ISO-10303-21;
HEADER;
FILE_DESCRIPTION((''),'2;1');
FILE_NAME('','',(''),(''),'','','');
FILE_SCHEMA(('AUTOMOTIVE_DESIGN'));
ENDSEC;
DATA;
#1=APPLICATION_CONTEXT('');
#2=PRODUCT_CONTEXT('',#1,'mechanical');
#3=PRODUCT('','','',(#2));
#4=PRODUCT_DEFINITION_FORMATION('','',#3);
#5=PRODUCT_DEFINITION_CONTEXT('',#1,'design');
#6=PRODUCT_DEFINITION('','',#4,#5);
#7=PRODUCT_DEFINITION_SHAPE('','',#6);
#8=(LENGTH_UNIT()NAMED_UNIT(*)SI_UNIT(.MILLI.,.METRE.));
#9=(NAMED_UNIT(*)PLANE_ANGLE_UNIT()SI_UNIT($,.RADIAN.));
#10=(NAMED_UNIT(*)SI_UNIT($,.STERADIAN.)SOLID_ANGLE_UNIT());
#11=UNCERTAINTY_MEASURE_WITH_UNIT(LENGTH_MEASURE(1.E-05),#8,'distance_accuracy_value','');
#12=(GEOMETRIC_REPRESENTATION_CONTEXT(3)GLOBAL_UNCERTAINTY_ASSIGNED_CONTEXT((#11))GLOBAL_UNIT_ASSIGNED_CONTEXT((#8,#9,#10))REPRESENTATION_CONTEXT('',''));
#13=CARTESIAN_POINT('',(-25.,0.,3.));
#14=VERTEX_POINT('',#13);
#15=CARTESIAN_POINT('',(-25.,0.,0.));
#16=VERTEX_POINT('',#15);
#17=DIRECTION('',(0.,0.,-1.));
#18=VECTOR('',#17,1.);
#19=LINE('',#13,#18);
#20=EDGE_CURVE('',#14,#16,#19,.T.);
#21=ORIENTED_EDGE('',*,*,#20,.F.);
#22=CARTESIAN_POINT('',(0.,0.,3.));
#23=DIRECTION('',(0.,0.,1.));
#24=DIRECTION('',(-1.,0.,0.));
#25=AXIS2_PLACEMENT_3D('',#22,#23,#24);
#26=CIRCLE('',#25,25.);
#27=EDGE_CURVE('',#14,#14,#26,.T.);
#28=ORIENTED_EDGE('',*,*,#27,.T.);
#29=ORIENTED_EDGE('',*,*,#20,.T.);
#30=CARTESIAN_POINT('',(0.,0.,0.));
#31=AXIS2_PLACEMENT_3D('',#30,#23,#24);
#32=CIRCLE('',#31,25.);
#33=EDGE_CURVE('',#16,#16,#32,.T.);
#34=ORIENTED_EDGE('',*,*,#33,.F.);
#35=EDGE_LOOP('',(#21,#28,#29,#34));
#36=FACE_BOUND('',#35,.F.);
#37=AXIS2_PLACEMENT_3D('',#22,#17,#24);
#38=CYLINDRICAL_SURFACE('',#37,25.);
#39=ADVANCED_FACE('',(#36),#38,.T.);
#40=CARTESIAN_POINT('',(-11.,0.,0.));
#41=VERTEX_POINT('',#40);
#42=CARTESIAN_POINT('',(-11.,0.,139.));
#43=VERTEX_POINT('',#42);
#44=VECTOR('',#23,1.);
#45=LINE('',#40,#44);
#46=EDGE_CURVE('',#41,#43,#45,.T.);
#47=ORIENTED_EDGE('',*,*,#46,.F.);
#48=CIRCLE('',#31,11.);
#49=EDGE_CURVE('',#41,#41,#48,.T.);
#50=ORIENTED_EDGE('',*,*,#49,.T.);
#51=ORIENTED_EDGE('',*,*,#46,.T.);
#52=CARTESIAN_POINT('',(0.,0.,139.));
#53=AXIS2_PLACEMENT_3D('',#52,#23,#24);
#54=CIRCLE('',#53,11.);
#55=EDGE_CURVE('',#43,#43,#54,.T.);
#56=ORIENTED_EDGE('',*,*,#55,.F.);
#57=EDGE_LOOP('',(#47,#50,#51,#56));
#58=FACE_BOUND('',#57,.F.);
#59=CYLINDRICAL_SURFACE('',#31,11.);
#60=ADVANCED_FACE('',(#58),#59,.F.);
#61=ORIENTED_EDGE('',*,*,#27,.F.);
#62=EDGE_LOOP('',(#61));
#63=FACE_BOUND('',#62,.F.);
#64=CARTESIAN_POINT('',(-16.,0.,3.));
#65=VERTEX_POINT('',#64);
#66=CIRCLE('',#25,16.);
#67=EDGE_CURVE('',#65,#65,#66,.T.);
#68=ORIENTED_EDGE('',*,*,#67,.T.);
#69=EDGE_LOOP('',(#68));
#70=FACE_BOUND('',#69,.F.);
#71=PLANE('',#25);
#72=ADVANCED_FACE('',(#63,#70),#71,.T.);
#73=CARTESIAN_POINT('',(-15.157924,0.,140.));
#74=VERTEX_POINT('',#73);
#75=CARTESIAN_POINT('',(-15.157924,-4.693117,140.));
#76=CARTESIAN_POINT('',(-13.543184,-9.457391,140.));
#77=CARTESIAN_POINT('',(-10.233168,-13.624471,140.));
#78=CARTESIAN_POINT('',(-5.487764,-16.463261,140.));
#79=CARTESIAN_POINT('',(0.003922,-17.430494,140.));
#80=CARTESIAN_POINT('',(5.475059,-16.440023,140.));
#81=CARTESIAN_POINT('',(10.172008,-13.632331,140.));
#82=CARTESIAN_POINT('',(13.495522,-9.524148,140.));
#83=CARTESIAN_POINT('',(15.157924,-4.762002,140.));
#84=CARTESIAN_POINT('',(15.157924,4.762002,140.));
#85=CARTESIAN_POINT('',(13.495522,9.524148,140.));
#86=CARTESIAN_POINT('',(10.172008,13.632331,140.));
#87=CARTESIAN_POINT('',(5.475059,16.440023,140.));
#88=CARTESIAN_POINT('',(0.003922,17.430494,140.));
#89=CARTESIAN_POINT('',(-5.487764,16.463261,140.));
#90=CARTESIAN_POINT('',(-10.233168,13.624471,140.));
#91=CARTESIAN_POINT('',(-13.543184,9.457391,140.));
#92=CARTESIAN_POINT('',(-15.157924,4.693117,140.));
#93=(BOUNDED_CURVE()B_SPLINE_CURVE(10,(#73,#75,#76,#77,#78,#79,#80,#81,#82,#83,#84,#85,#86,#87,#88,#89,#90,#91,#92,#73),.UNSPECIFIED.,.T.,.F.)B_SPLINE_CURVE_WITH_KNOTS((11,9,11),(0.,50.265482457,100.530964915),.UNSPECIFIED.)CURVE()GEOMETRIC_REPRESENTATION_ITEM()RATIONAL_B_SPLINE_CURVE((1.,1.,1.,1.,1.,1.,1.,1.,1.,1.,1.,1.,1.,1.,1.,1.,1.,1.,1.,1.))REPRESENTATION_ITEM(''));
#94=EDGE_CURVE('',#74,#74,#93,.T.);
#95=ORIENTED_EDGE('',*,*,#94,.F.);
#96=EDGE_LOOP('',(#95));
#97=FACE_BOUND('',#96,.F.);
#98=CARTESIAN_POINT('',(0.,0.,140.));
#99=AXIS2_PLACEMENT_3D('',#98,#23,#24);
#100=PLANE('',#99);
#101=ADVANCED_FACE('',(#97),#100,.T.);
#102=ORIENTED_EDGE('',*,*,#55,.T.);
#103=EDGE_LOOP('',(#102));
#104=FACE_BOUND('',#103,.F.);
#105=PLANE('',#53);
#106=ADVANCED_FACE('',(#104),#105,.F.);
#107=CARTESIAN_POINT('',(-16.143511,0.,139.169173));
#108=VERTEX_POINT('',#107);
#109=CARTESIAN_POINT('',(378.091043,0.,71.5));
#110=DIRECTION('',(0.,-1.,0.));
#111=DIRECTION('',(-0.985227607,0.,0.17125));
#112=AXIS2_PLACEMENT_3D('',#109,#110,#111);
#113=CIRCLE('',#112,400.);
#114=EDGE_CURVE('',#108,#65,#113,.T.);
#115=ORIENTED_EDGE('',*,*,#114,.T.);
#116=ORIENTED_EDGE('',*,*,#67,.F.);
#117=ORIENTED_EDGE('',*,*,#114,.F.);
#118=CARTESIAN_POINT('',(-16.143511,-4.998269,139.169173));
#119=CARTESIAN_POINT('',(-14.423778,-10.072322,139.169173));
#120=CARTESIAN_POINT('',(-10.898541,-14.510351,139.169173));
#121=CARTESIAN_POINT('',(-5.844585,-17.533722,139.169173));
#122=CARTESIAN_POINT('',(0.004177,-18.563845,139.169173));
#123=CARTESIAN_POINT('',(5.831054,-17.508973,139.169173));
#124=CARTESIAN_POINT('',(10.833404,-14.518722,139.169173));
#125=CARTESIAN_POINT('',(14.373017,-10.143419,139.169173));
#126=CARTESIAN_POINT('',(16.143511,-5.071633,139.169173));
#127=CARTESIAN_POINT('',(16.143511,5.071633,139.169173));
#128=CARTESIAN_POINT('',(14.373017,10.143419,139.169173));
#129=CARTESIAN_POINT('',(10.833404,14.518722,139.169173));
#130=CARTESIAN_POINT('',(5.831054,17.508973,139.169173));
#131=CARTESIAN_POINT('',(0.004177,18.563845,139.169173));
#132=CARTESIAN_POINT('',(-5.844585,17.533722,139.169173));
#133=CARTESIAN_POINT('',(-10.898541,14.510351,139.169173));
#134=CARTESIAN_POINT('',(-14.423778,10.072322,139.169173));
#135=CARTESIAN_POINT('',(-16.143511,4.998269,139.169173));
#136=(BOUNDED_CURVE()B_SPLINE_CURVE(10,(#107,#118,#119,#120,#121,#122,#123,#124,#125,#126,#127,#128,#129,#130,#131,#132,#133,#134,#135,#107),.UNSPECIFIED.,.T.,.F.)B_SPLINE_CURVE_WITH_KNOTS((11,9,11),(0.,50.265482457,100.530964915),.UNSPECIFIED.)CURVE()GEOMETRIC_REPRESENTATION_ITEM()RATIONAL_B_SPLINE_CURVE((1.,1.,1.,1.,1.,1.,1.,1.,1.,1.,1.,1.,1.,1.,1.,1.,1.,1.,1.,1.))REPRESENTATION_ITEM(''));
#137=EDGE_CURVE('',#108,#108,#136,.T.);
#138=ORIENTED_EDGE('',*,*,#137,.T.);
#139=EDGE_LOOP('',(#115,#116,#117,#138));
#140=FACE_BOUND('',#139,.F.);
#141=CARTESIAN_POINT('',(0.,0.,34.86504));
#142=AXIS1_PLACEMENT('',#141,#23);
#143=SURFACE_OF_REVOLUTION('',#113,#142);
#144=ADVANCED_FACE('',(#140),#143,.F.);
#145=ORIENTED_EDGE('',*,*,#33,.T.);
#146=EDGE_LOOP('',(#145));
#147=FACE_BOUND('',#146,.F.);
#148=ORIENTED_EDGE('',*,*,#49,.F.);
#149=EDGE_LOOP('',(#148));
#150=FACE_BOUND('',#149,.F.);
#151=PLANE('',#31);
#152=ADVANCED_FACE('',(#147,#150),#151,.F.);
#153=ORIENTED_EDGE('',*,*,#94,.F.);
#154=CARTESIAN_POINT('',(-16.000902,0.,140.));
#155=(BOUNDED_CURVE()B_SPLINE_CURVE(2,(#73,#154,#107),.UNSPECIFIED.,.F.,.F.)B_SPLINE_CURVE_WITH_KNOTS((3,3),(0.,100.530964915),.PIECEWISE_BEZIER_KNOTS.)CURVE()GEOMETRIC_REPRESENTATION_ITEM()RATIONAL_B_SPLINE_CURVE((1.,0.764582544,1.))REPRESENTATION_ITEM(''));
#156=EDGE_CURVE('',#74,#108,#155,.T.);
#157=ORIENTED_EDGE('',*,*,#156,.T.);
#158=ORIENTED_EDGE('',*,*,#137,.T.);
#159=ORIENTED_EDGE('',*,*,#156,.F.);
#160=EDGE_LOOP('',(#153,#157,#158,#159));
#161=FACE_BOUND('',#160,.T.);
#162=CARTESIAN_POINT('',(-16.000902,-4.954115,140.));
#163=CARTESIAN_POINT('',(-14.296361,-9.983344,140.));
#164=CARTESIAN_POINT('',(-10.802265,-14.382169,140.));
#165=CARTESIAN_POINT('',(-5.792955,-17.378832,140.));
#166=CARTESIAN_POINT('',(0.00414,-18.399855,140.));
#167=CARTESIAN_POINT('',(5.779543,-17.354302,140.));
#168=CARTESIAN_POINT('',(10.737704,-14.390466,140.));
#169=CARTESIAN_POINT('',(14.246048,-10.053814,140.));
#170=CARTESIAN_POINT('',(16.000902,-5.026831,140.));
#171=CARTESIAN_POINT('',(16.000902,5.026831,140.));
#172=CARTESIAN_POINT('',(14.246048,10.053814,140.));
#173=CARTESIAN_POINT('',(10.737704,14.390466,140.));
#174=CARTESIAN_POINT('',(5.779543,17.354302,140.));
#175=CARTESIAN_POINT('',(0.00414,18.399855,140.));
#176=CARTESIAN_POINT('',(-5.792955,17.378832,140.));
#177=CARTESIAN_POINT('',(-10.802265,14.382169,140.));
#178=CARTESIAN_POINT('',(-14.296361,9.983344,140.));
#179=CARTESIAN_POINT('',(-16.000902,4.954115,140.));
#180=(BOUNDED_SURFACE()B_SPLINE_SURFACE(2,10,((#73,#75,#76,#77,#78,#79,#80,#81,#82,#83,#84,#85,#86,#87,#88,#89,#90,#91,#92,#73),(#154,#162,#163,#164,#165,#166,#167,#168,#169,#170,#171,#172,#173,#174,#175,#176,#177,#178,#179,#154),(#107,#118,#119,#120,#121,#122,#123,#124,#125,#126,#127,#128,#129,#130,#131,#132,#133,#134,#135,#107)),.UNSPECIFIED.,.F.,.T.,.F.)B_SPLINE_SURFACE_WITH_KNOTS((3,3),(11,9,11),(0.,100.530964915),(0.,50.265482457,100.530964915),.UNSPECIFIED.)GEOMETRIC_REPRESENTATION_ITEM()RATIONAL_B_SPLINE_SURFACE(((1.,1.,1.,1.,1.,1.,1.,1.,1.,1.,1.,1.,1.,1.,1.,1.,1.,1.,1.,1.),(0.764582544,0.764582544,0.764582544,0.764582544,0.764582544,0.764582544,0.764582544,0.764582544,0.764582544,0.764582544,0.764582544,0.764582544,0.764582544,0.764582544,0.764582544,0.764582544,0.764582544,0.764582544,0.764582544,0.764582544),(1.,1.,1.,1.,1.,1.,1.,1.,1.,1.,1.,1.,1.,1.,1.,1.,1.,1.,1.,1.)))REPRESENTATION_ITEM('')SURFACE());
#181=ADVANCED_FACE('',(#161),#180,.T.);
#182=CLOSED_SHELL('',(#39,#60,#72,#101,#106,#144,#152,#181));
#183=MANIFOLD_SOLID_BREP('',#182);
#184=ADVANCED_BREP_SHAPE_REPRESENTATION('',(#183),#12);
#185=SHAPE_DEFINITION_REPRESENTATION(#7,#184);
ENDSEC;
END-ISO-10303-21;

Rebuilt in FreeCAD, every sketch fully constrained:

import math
import FreeCAD as App
import Part
import Sketcher
Q = App.Units.Quantity


def edges_at(feature, points):
    """Names of the edges that pass closest to the given points."""
    edges = feature.Shape.Edges
    near = lambda p: min(range(len(edges)), key=lambda i: edges[i].distToShape(Part.Vertex(*p))[0])
    return sorted({f"Edge{near(p) + 1}" for p in points})

doc = App.newDocument("Part")
body = doc.addObject("PartDesign::Body", "Body")

sketch1 = body.newObject("Sketcher::SketchObject", "Sketch")
sketch1.AttachmentSupport = (doc.getObject("XZ_Plane"), [""])
sketch1.MapMode = "FlatFace"
sketch1.addGeometry([
    Part.LineSegment(App.Vector(-25, 3, 0), App.Vector(-25, 0, 0)),
    Part.LineSegment(App.Vector(-25, 0, 0), App.Vector(-11, 0, 0)),
    Part.LineSegment(App.Vector(-11, 0, 0), App.Vector(-11, 139, 0)),
    Part.LineSegment(App.Vector(-11, 139, 0), App.Vector(0, 139, 0)),
    Part.LineSegment(App.Vector(0, 139, 0), App.Vector(0, 140, 0)),
    Part.LineSegment(App.Vector(0, 140, 0), App.Vector(-16, 140, 0)),
    Part.ArcOfCircle(Part.Circle(App.Vector(378.1, 71.5, 0), App.Vector(0, 0, 1), 400), math.radians(170.14), math.radians(189.86)),
    Part.LineSegment(App.Vector(-16, 3, 0), App.Vector(-25, 3, 0)),
], False)
sketch1.addConstraint([
    Sketcher.Constraint("Coincident", 0, 2, 1, 1),
    Sketcher.Constraint("Coincident", 1, 2, 2, 1),
    Sketcher.Constraint("Coincident", 2, 2, 3, 1),
    Sketcher.Constraint("Coincident", 3, 2, 4, 1),
    Sketcher.Constraint("Coincident", 4, 2, 5, 1),
    Sketcher.Constraint("Coincident", 5, 2, 6, 1),
    Sketcher.Constraint("Coincident", 6, 2, 7, 1),
    Sketcher.Constraint("Coincident", 7, 2, 0, 1),
    Sketcher.Constraint("Vertical", 0),
    Sketcher.Constraint("Horizontal", 1),
    Sketcher.Constraint("Vertical", 2),
    Sketcher.Constraint("Horizontal", 3),
    Sketcher.Constraint("Vertical", 4),
    Sketcher.Constraint("Horizontal", 5),
    Sketcher.Constraint("Horizontal", 7),
    Sketcher.Constraint("PointOnObject", 0, 2, -1),
    Sketcher.Constraint("PointOnObject", 3, 2, -2),
    Sketcher.Constraint("Vertical", 5, 2, 6, 2),
    Sketcher.Constraint("Radius", 6, Q("400 mm")),
    Sketcher.Constraint("DistanceX", 1, 1, 1, 2, Q("14 mm")),
    Sketcher.Constraint("DistanceX", 3, 1, 3, 2, Q("11 mm")),
    Sketcher.Constraint("DistanceX", 5, 2, 5, 1, Q("16 mm")),
    Sketcher.Constraint("DistanceY", 0, 2, 0, 1, Q("3 mm")),
    Sketcher.Constraint("DistanceY", 2, 1, 2, 2, Q("139 mm")),
    Sketcher.Constraint("DistanceY", 4, 1, 4, 2, Q("1 mm")),
])
revolution = body.newObject("PartDesign::Revolution", "Revolution")
revolution.Profile = sketch1
revolution.ReferenceAxis = (sketch1, ["V_Axis"])
revolution.Angle = 360
doc.recompute()

fillet = body.newObject("PartDesign::Fillet", "Fillet")
fillet.Base = (revolution, edges_at(revolution, [(16, 0, 140)]))
fillet.Radius = 1

doc.recompute()
